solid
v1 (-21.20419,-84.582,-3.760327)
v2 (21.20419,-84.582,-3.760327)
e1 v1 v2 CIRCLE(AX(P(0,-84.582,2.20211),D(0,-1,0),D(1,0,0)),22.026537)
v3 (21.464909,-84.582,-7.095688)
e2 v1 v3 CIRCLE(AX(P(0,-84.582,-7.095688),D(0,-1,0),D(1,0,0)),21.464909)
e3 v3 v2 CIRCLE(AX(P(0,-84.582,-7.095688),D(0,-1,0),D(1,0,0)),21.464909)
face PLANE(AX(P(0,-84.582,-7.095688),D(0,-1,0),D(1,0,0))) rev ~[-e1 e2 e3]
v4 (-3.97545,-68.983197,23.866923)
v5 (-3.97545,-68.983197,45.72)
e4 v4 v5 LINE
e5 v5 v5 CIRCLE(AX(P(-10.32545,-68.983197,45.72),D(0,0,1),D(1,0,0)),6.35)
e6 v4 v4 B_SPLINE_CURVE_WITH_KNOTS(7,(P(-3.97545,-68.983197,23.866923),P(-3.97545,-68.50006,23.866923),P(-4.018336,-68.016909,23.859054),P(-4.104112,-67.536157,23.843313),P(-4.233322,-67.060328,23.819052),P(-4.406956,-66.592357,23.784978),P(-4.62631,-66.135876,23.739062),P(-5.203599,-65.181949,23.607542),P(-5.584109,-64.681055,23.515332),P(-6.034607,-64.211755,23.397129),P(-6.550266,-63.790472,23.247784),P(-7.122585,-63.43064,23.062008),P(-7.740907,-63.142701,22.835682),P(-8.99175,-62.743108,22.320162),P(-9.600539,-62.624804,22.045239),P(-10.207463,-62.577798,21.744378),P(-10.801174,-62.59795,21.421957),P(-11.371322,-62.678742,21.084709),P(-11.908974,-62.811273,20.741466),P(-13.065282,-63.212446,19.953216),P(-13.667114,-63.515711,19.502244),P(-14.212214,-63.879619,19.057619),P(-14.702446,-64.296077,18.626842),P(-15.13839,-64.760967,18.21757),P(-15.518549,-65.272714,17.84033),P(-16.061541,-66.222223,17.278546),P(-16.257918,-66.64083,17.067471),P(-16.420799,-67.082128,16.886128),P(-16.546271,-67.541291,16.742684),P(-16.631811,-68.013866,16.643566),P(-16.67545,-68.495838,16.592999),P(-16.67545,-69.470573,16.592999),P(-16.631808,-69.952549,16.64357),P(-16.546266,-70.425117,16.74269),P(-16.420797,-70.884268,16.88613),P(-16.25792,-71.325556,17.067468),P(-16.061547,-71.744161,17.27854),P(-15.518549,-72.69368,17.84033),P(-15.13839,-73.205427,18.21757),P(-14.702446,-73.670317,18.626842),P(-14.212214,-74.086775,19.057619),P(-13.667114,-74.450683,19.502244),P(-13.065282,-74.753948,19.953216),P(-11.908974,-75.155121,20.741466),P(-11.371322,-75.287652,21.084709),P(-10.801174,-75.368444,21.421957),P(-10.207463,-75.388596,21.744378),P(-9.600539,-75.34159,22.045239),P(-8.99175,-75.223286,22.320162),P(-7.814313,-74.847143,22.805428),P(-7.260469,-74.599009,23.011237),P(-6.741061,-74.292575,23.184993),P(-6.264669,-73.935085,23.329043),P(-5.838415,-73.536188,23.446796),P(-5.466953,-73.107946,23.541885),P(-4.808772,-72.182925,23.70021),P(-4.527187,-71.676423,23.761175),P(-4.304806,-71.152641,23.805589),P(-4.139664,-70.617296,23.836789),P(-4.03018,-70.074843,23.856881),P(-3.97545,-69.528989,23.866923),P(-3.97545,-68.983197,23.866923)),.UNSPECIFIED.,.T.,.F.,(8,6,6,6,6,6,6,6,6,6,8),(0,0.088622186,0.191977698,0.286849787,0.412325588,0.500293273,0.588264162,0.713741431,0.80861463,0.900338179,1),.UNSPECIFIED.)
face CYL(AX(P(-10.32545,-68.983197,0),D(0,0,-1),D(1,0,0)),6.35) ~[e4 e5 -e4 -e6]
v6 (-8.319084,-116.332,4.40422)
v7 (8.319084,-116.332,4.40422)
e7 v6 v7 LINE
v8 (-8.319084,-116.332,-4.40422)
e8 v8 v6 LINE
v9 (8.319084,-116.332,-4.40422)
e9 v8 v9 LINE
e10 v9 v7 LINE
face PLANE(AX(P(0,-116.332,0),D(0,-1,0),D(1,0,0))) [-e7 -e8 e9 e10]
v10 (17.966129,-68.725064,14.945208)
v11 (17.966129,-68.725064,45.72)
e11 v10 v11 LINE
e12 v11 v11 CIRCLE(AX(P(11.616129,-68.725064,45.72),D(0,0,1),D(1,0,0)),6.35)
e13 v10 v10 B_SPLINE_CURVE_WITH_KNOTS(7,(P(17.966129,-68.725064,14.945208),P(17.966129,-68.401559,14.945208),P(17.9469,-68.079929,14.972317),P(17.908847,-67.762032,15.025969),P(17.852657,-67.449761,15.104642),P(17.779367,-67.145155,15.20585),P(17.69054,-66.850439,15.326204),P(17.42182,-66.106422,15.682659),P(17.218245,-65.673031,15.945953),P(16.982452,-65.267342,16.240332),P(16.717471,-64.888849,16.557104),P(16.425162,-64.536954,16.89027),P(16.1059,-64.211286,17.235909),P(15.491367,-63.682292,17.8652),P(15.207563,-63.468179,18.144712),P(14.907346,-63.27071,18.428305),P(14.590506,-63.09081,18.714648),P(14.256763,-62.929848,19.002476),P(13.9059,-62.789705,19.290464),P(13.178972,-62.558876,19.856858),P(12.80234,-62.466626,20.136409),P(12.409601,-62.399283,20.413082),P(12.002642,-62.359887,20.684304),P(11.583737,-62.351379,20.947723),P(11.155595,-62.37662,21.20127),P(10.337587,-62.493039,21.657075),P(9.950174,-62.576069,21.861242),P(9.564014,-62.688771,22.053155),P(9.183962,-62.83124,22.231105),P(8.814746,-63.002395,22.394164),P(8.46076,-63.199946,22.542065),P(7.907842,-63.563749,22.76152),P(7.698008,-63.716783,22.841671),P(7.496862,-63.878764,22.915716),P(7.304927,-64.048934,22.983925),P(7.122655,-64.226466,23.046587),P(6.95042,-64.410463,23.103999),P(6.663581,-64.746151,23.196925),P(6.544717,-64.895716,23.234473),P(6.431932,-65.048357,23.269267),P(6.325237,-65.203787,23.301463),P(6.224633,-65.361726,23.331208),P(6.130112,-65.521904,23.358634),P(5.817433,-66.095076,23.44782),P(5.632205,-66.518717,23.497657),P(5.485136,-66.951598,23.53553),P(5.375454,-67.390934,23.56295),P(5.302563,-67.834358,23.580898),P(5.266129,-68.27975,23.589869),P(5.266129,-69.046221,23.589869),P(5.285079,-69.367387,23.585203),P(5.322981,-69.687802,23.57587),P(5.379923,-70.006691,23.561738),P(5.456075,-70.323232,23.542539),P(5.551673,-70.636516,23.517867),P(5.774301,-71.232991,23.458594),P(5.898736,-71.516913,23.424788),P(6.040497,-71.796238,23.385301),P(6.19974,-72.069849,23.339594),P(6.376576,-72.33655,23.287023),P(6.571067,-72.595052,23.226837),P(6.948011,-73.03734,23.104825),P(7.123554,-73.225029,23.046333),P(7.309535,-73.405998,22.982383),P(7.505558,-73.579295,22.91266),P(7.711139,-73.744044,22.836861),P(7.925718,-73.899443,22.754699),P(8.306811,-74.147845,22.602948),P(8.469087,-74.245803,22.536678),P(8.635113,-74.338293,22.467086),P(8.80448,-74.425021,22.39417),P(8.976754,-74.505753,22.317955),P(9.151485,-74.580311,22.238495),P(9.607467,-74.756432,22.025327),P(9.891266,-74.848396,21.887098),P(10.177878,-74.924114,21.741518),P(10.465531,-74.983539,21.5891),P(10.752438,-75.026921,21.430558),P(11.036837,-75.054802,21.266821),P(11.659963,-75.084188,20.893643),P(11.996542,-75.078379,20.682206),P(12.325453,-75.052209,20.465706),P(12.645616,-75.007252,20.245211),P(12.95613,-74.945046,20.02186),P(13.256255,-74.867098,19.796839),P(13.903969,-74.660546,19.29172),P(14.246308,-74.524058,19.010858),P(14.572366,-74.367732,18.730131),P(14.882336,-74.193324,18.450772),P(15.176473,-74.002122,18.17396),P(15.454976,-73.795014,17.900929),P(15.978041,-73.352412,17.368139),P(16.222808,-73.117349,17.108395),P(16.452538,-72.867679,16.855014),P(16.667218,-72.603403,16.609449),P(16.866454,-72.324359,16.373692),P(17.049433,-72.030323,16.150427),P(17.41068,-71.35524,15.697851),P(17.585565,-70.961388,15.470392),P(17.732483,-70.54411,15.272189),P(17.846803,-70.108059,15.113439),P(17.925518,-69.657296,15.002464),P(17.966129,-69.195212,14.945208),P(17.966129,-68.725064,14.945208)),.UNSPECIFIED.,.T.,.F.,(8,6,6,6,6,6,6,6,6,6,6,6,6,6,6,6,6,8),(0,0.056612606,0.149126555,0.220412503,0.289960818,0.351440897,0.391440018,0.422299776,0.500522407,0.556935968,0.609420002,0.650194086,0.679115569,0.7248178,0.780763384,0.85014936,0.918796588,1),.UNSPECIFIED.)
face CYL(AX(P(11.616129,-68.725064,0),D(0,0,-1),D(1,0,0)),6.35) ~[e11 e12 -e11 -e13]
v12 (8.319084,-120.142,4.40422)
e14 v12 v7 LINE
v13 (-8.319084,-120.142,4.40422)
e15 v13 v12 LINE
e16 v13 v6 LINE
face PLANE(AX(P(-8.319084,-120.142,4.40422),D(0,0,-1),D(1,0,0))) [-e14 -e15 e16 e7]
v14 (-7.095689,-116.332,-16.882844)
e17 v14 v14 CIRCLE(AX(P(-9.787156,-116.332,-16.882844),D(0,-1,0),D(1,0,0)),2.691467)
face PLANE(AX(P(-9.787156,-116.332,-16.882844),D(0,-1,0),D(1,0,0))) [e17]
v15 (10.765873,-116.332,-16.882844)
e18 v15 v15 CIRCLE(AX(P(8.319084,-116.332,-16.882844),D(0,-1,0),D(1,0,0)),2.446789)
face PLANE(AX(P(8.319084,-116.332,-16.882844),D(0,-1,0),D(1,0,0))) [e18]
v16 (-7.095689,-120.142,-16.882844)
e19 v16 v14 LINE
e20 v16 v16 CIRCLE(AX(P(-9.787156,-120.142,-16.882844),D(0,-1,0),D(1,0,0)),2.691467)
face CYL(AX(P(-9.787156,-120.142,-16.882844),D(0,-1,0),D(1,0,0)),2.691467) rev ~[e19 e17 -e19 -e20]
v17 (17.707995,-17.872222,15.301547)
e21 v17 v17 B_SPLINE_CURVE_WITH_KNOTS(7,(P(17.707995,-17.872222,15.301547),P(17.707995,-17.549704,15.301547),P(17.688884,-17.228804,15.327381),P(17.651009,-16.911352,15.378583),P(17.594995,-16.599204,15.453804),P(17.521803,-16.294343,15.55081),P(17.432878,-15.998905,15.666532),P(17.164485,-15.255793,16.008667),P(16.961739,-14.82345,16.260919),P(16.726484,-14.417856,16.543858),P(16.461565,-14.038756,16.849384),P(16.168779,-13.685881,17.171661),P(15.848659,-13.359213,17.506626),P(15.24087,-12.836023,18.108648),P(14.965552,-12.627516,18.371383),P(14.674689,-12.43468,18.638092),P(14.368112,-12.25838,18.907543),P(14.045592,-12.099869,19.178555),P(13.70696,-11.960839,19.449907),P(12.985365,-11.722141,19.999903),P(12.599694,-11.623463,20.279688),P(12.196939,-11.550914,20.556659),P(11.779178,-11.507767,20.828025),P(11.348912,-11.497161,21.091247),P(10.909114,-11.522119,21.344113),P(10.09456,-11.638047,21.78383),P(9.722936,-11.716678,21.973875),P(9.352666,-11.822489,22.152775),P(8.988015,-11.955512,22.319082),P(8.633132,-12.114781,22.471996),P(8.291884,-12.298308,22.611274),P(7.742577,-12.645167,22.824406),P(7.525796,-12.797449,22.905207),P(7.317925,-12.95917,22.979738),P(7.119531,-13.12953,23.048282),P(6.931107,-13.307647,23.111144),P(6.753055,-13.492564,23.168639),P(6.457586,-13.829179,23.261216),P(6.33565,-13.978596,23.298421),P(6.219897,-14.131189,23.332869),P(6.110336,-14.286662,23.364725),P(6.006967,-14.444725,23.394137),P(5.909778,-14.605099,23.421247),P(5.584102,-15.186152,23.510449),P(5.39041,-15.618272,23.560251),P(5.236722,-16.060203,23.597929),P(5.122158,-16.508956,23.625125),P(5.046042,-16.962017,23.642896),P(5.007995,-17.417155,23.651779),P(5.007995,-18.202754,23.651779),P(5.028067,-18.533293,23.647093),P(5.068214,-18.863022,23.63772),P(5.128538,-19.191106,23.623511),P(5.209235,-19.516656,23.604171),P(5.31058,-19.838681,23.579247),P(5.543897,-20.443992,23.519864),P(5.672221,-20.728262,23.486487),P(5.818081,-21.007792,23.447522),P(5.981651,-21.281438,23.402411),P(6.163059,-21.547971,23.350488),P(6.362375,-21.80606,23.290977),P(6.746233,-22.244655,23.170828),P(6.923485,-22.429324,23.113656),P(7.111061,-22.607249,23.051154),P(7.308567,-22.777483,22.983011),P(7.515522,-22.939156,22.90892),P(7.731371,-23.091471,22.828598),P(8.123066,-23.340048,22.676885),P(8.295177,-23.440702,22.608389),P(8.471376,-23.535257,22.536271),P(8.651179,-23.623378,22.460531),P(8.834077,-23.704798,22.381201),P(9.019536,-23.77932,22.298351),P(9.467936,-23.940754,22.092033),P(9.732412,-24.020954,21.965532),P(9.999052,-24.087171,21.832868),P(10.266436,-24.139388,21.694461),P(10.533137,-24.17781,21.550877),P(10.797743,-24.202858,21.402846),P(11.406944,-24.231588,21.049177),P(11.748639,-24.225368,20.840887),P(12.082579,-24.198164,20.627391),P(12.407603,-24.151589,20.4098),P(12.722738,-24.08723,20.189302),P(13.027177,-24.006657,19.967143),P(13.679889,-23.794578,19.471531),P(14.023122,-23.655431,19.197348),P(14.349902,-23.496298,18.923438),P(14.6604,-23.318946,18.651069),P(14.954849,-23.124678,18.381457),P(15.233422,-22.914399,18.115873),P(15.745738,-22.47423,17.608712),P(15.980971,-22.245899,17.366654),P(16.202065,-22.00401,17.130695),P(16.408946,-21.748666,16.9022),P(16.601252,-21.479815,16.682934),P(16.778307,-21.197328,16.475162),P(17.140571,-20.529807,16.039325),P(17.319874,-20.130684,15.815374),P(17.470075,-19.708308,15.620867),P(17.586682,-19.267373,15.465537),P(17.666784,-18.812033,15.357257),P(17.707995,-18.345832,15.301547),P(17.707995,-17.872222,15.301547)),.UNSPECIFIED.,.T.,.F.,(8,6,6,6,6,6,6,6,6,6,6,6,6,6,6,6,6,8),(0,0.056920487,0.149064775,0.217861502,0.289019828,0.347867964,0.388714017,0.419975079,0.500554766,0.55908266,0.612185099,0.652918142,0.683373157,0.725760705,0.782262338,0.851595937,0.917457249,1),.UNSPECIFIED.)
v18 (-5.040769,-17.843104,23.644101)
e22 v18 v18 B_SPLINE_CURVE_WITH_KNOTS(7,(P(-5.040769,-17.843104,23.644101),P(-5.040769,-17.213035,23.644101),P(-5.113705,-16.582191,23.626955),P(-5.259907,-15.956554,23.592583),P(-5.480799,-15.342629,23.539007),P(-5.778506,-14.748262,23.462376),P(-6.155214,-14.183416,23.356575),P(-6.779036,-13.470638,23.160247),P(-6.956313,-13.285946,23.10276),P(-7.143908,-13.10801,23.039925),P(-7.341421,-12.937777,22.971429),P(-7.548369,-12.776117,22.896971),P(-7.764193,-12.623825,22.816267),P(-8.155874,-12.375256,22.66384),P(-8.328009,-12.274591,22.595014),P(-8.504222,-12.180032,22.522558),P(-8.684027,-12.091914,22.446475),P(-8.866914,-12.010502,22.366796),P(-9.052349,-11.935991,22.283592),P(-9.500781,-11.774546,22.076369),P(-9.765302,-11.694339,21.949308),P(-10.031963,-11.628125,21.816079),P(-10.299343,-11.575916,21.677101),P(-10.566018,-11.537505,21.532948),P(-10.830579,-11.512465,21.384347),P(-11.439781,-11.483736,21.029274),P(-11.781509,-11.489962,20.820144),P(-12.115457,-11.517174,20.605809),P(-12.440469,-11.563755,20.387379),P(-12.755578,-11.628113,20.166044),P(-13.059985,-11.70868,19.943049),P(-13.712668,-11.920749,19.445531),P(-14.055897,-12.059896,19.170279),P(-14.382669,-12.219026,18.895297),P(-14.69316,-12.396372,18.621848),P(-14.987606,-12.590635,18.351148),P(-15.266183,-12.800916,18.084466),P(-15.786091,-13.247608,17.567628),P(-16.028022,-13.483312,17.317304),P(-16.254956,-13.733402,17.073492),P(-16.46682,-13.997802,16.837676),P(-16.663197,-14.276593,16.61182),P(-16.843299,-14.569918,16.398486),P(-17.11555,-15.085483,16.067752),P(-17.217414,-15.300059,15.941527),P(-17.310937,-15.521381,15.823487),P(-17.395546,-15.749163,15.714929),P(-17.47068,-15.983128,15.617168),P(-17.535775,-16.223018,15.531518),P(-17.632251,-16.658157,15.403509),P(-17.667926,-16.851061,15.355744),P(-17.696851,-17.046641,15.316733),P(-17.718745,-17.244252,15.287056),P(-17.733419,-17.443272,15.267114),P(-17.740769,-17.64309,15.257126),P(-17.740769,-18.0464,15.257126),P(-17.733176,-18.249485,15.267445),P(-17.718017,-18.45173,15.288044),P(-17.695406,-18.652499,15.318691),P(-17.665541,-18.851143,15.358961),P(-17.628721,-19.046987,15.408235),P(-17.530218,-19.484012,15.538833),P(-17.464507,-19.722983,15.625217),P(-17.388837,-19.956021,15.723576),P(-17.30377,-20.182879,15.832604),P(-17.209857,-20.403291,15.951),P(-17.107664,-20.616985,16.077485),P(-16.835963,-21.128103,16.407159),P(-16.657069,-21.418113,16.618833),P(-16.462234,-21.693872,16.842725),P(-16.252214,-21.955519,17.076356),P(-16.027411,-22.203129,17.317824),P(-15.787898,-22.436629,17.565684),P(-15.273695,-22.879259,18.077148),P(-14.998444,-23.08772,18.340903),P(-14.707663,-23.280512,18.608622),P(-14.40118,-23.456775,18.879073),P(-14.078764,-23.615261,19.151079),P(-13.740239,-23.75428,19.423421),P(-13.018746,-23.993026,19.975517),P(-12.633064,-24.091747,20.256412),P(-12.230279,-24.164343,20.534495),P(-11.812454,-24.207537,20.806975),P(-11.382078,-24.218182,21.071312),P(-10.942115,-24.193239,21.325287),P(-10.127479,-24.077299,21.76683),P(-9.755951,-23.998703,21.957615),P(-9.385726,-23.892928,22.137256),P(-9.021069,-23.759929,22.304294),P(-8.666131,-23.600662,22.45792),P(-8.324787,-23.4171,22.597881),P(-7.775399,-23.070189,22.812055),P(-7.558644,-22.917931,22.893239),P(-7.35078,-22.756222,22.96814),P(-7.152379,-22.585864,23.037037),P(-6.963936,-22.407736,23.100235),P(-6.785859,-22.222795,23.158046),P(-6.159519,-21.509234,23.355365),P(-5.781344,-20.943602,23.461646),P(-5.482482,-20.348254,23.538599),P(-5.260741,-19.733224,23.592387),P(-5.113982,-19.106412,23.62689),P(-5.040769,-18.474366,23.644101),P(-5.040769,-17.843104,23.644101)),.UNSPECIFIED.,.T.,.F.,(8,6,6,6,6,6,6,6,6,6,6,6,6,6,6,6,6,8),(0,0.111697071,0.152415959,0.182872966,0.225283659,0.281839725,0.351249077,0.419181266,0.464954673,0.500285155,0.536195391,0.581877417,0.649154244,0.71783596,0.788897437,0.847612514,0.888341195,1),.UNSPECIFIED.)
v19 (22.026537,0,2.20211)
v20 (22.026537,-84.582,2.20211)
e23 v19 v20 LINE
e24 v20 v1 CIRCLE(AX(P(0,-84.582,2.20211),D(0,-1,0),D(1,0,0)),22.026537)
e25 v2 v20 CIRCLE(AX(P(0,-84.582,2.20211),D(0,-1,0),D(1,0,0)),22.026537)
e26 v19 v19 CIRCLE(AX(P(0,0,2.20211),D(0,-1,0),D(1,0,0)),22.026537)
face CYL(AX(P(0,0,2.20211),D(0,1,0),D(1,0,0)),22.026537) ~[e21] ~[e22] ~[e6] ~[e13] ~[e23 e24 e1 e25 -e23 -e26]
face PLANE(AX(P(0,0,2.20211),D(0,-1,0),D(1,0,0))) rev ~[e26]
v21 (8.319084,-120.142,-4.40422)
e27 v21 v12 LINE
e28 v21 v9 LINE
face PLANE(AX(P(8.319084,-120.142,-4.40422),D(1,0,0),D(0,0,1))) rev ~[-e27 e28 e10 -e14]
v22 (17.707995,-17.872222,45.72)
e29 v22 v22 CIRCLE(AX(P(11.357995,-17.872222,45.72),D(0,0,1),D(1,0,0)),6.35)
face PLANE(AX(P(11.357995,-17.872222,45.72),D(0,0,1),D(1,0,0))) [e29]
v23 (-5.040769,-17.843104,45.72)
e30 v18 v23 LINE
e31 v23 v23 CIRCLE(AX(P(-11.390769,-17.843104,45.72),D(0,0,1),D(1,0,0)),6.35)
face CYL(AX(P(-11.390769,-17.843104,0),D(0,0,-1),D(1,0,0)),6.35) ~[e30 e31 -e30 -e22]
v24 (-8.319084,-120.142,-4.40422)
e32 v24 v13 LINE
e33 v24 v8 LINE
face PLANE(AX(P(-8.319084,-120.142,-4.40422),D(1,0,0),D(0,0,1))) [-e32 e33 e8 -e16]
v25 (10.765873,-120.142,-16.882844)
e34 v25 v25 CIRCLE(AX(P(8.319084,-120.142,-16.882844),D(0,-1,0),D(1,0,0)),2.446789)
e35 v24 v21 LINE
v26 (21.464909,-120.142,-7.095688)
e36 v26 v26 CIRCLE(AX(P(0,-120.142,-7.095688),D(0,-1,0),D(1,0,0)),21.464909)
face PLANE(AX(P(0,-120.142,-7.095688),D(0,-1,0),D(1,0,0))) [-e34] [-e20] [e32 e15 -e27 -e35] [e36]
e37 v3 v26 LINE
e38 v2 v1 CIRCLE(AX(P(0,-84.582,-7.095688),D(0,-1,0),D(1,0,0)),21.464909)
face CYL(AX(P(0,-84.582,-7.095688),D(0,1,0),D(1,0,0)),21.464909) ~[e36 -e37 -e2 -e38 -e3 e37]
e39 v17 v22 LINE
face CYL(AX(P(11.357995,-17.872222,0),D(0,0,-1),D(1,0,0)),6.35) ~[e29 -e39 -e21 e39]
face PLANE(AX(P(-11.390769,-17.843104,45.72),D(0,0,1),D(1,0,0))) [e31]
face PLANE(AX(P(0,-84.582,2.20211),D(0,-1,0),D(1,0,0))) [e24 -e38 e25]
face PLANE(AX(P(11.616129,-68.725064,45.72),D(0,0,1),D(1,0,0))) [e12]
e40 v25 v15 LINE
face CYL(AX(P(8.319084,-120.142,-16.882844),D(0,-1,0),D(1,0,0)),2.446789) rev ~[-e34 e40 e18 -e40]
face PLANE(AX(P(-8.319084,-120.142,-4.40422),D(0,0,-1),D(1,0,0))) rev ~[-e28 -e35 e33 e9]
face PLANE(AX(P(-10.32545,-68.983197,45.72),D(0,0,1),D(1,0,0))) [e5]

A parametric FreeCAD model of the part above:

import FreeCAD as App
import Part
import Sketcher
from FreeCAD import Vector
Q = App.Units.Quantity

doc = App.newDocument("Part")
body = doc.addObject("PartDesign::Body", "Body")

# Sketch on XZ plane
sketch1 = body.newObject("Sketcher::SketchObject", "Sketch")
sketch1.AttachmentSupport = (doc.getObject("XZ_Plane"), [""])
sketch1.MapMode = "FlatFace"
sketch1.addGeometry(Part.Circle(Vector(0, 2.20211, 0), Vector(0, 0, 1), 22.026537), False)
sketch1.addConstraint([
    Sketcher.Constraint("PointOnObject", 0, 3, -2),
    Sketcher.Constraint("Diameter", 0, Q("44.053074 mm")),
    Sketcher.Constraint("DistanceY", -1, 1, 0, 3, Q("2.20211 mm")),
])
pad1 = body.newObject("PartDesign::Pad", "Pad")
pad1.Profile = sketch1
pad1.Length = Q("3.33 in")

# Sketch on XY plane
sketch2 = body.newObject("Sketcher::SketchObject", "Sketch001")
sketch2.AttachmentSupport = (doc.getObject("XY_Plane"), [""])
sketch2.MapMode = "FlatFace"
sketch2.addGeometry([
    Part.Circle(Vector(-11.390769, -17.843104, 0), Vector(0, 0, 1), 6.35),
    Part.Circle(Vector(11.357995, -17.872222, 0), Vector(0, 0, 1), 6.35),
    Part.Circle(Vector(-10.32545, -68.983197, 0), Vector(0, 0, 1), 6.35),
    Part.Circle(Vector(11.616129, -68.725064, 0), Vector(0, 0, 1), 6.35),
], False)
sketch2.addConstraint([
    Sketcher.Constraint("Equal", 0, 1),
    Sketcher.Constraint("Equal", 1, 2),
    Sketcher.Constraint("Equal", 2, 3),
    Sketcher.Constraint("Diameter", 0, Q("0.5 in")),
    Sketcher.Constraint("DistanceX", 0, 3, -1, 1, Q("11.390769 mm")),
    Sketcher.Constraint("DistanceX", 2, 3, -1, 1, Q("10.32545 mm")),
    Sketcher.Constraint("DistanceX", -1, 1, 3, 3, Q("11.616129 mm")),
    Sketcher.Constraint("DistanceY", 1, 3, 0, 3, Q("0.029118 mm")),
    Sketcher.Constraint("DistanceY", 3, 3, 0, 3, Q("50.88196 mm")),
    Sketcher.Constraint("DistanceY", 0, 3, -1, 1, Q("17.843104 mm")),
    Sketcher.Constraint("DistanceX", -1, 1, 1, 3, Q("11.357995 mm")),
    Sketcher.Constraint("DistanceY", 2, 3, -1, 1, Q("68.983197 mm")),
])
pad2 = body.newObject("PartDesign::Pad", "Pad001")
pad2.Profile = sketch2
pad2.Length = Q("1.8 in")

# Sketch on XZ plane
sketch3 = body.newObject("Sketcher::SketchObject", "Sketch002")
sketch3.AttachmentSupport = (doc.getObject("XZ_Plane"), [""])
sketch3.MapMode = "FlatFace"
sketch3.AttachmentOffset = App.Placement(Vector(0, 0, 3.33 * 25.4), App.Rotation())
sketch3.addGeometry(Part.Circle(Vector(0, -7.095688, 0), Vector(0, 0, 1), 21.464909), False)
sketch3.addConstraint([
    Sketcher.Constraint("PointOnObject", 0, 3, -2),
    Sketcher.Constraint("Diameter", 0, Q("42.929818 mm")),
    Sketcher.Constraint("DistanceY", 0, 3, -1, 1, Q("7.095688 mm")),
])
pad3 = body.newObject("PartDesign::Pad", "Pad002")
pad3.Profile = sketch3
pad3.Length = Q("1.4 in")

# Sketch on XZ plane
sketch4 = body.newObject("Sketcher::SketchObject", "Sketch003")
sketch4.AttachmentSupport = (doc.getObject("XZ_Plane"), [""])
sketch4.MapMode = "FlatFace"
sketch4.AttachmentOffset = App.Placement(Vector(0, 0, 4.73 * 25.4), App.Rotation())
sketch4.addGeometry([
    Part.Circle(Vector(-9.787156, -16.882844, 0), Vector(0, 0, 1), 2.691467),  # 0
    Part.Circle(Vector(8.319084, -16.882844, 0), Vector(0, 0, 1), 2.446789),  # 1
    Part.LineSegment(Vector(-8.319084, 4.40422, 0), Vector(-8.319084, -4.40422, 0)),  # 2
    Part.LineSegment(Vector(-8.319084, -4.40422, 0), Vector(8.319084, -4.40422, 0)),  # 3
    Part.LineSegment(Vector(8.319084, -4.40422, 0), Vector(8.319084, 4.40422, 0)),  # 4
    Part.LineSegment(Vector(8.319084, 4.40422, 0), Vector(-8.319084, 4.40422, 0)),  # 5
], False)
sketch4.addConstraint([
    Sketcher.Constraint("Coincident", 2, 2, 3, 1),
    Sketcher.Constraint("Coincident", 3, 2, 4, 1),
    Sketcher.Constraint("Coincident", 4, 2, 5, 1),
    Sketcher.Constraint("Coincident", 5, 2, 2, 1),
    Sketcher.Constraint("Vertical", 2),
    Sketcher.Constraint("Horizontal", 3),
    Sketcher.Constraint("Vertical", 4),
    Sketcher.Constraint("Horizontal", 5),
    Sketcher.Constraint("Symmetric", 2, 2, 4, 2, -1, 1),
    Sketcher.Constraint("Horizontal", 0, 3, 1, 3),
    Sketcher.Constraint("Vertical", 1, 3, 3, 2),
    Sketcher.Constraint("Diameter", 0, Q("5.382934 mm")),
    Sketcher.Constraint("Diameter", 1, Q("4.893578 mm")),
    Sketcher.Constraint("DistanceX", 3, 1, 3, 2, Q("16.638168 mm")),
    Sketcher.Constraint("DistanceY", 2, 2, 2, 1, Q("8.80844 mm")),
    Sketcher.Constraint("DistanceX", 0, 3, 1, 3, Q("18.10624 mm")),
    Sketcher.Constraint("DistanceY", 0, 3, -1, 1, Q("16.882844 mm")),
])
pocket1 = body.newObject("PartDesign::Pocket", "Pocket")
pocket1.Profile = sketch4
pocket1.Length = Q("0.15 in")

doc.recompute()
